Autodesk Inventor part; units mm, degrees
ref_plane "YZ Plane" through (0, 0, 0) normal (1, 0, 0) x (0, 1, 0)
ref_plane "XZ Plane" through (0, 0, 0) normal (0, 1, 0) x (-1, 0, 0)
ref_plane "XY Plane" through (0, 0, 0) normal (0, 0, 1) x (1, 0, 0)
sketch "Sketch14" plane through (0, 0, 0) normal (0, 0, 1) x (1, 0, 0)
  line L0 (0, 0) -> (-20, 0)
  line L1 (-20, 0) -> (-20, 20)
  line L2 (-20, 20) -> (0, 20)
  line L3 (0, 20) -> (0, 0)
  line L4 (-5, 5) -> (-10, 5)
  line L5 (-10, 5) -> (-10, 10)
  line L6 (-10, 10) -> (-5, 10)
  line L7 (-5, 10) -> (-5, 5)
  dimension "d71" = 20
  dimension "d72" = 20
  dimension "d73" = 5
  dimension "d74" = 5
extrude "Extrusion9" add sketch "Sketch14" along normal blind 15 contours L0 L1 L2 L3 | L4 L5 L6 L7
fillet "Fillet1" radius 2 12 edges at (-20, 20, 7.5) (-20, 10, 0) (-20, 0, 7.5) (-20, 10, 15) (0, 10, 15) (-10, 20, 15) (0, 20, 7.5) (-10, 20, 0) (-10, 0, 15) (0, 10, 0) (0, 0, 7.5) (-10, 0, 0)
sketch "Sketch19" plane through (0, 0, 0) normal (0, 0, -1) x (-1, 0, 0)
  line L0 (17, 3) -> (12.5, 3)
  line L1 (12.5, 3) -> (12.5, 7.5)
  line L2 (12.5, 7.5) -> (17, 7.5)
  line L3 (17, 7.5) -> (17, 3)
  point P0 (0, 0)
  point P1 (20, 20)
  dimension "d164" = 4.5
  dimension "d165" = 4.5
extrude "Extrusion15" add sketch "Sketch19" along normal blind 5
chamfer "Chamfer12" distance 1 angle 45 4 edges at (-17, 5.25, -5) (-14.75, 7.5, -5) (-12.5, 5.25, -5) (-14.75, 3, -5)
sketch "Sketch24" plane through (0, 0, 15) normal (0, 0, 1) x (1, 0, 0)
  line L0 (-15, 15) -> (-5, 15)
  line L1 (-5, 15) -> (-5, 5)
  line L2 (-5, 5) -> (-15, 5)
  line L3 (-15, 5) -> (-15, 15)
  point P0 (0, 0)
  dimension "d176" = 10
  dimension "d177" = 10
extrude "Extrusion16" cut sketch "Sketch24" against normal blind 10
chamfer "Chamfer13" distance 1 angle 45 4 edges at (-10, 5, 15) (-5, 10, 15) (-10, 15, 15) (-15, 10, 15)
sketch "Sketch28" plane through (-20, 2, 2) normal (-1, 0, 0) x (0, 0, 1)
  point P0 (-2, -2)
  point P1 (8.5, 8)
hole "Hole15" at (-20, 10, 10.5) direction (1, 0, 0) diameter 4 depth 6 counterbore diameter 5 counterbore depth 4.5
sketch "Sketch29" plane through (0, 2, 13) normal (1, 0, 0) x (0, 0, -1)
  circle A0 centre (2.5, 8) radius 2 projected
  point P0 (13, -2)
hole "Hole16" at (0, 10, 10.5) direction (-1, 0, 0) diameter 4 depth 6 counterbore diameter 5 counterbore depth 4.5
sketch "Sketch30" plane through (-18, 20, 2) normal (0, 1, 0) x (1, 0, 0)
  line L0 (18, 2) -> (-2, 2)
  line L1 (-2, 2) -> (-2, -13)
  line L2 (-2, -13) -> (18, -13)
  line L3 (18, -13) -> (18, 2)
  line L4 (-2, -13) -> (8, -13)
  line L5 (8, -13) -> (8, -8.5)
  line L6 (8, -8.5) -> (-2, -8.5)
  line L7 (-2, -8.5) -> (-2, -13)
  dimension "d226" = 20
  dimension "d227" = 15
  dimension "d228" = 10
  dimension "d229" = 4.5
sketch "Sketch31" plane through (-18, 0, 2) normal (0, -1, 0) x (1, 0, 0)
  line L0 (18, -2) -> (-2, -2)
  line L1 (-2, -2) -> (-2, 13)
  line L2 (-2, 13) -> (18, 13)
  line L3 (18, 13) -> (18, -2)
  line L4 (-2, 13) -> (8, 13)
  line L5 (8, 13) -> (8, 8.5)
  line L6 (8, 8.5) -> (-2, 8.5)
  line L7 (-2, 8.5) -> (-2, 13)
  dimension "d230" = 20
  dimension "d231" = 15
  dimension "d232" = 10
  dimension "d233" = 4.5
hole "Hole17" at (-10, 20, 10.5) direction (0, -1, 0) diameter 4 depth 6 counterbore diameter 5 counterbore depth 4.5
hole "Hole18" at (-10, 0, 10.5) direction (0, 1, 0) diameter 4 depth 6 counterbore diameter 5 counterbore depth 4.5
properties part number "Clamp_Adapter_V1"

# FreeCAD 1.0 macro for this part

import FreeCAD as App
import Part
import Sketcher

V = App.Vector
Q = App.Units.Quantity


def edges_at(feature, points):
    """Names of the edges that pass closest to the given points."""
    edges = feature.Shape.Edges
    near = lambda p: min(range(len(edges)), key=lambda i: edges[i].distToShape(Part.Vertex(*p))[0])
    return sorted({f"Edge{near(p) + 1}" for p in points})

doc = App.newDocument("Part")
body = doc.addObject("PartDesign::Body", "Body")

sketch1 = body.newObject("Sketcher::SketchObject", "Sketch")
sketch1.AttachmentSupport = (doc.getObject("XY_Plane"), [""])
sketch1.MapMode = "FlatFace"
sketch1.addGeometry([
    Part.LineSegment(V(-20, 0, 0), V(0, 0, 0)),
    Part.LineSegment(V(0, 0, 0), V(0, 20, 0)),
    Part.LineSegment(V(0, 20, 0), V(-20, 20, 0)),
    Part.LineSegment(V(-20, 20, 0), V(-20, 0, 0)),
], False)
sketch1.addConstraint([
    Sketcher.Constraint("Coincident", 0, 2, 1, 1),
    Sketcher.Constraint("Coincident", 1, 2, 2, 1),
    Sketcher.Constraint("Coincident", 2, 2, 3, 1),
    Sketcher.Constraint("Coincident", 3, 2, 0, 1),
    Sketcher.Constraint("Horizontal", 0),
    Sketcher.Constraint("Vertical", 1),
    Sketcher.Constraint("Horizontal", 2),
    Sketcher.Constraint("Vertical", 3),
    Sketcher.Constraint("Coincident", 0, 2, -1, 1),
    Sketcher.Constraint("Equal", 2, 1),
    Sketcher.Constraint("DistanceX", 0, 1, 0, 2, Q("20 mm")),
])
pad1 = body.newObject("PartDesign::Pad", "Pad")
pad1.Profile = sketch1
pad1.Length = 15
doc.recompute()

fillet = body.newObject("PartDesign::Fillet", "Fillet")
fillet.Base = (pad1, ["Edge1"])
fillet.UseAllEdges = True
fillet.Radius = 2

sketch2 = body.newObject("Sketcher::SketchObject", "Sketch001")
sketch2.AttachmentSupport = (doc.getObject("XY_Plane"), [""])
sketch2.MapMode = "FlatFace"
sketch2.addGeometry([
    Part.LineSegment(V(-12.5, 3, 0), V(-17, 3, 0)),
    Part.LineSegment(V(-17, 3, 0), V(-17, 7.5, 0)),
    Part.LineSegment(V(-17, 7.5, 0), V(-12.5, 7.5, 0)),
    Part.LineSegment(V(-12.5, 7.5, 0), V(-12.5, 3, 0)),
], False)
sketch2.addConstraint([
    Sketcher.Constraint("Coincident", 0, 2, 1, 1),
    Sketcher.Constraint("Coincident", 1, 2, 2, 1),
    Sketcher.Constraint("Coincident", 2, 2, 3, 1),
    Sketcher.Constraint("Coincident", 3, 2, 0, 1),
    Sketcher.Constraint("Horizontal", 0),
    Sketcher.Constraint("Vertical", 1),
    Sketcher.Constraint("Horizontal", 2),
    Sketcher.Constraint("Vertical", 3),
    Sketcher.Constraint("Equal", 2, 1),
    Sketcher.Constraint("DistanceX", 0, 2, 0, 1, Q("4.5 mm")),
    Sketcher.Constraint("DistanceX", 0, 2, -1, 1, Q("17 mm")),
    Sketcher.Constraint("DistanceY", -1, 1, 0, 2, Q("3 mm")),
])
pad2 = body.newObject("PartDesign::Pad", "Pad001")
pad2.Profile = sketch2
pad2.Length = 5
pad2.Reversed = True
doc.recompute()

chamfer = body.newObject("PartDesign::Chamfer", "Chamfer")
chamfer.Base = (pad2, edges_at(pad2, [
    (-17, 5.25, -5),
    (-14.75, 7.5, -5),
    (-12.5, 5.25, -5),
    (-14.75, 3, -5),
]))
chamfer.Size = 1

sketch3 = body.newObject("Sketcher::SketchObject", "Sketch002")
sketch3.AttachmentSupport = (doc.getObject("XY_Plane"), [""])
sketch3.MapMode = "FlatFace"
sketch3.AttachmentOffset = App.Placement(V(0, 0, 15), App.Rotation())
sketch3.addGeometry([
    Part.LineSegment(V(-5, 15, 0), V(-15, 15, 0)),
    Part.LineSegment(V(-15, 15, 0), V(-15, 5, 0)),
    Part.LineSegment(V(-15, 5, 0), V(-5, 5, 0)),
    Part.LineSegment(V(-5, 5, 0), V(-5, 15, 0)),
], False)
sketch3.addConstraint([
    Sketcher.Constraint("Coincident", 0, 2, 1, 1),
    Sketcher.Constraint("Coincident", 1, 2, 2, 1),
    Sketcher.Constraint("Coincident", 2, 2, 3, 1),
    Sketcher.Constraint("Coincident", 3, 2, 0, 1),
    Sketcher.Constraint("Horizontal", 0),
    Sketcher.Constraint("Vertical", 1),
    Sketcher.Constraint("Horizontal", 2),
    Sketcher.Constraint("Vertical", 3),
    Sketcher.Constraint("Equal", 2, 1),
    Sketcher.Constraint("DistanceX", 0, 2, 0, 1, Q("10 mm")),
    Sketcher.Constraint("DistanceX", 0, 2, -1, 1, Q("15 mm")),
    Sketcher.Constraint("DistanceY", -1, 1, 0, 2, Q("15 mm")),
])
pocket1 = body.newObject("PartDesign::Pocket", "Pocket")
pocket1.Profile = sketch3
pocket1.Length = 10
doc.recompute()

chamfer2 = body.newObject("PartDesign::Chamfer", "Chamfer001")
chamfer2.Base = (pocket1, edges_at(pocket1, [
    (-10, 5, 15),
    (-5, 10, 15),
    (-10, 15, 15),
    (-15, 10, 15),
]))
chamfer2.Size = 1

sketch4 = body.newObject("Sketcher::SketchObject", "Sketch003")
sketch4.AttachmentSupport = (doc.getObject("YZ_Plane"), [""])
sketch4.MapMode = "FlatFace"
sketch4.AttachmentOffset = App.Placement(V(0, 0, -20), App.Rotation())
sketch4.addGeometry(Part.Circle(V(10, 10.5, 0), V(0, 0, 1), 2), False)
sketch4.addConstraint([
    Sketcher.Constraint("Diameter", 0, Q("4 mm")),
    Sketcher.Constraint("DistanceX", -1, 1, 0, 3, Q("10 mm")),
    Sketcher.Constraint("DistanceY", -1, 1, 0, 3, Q("10.5 mm")),
])
doc.recompute()
hole = body.newObject("PartDesign::Hole", "Hole")
hole.Profile = sketch4
hole.ThreadType = "None"
hole.Diameter = 4
hole.DepthType = "Dimension"
hole.Depth = 6
hole.DrillPoint = "Flat"
hole.HoleCutType = "Counterbore"
hole.HoleCutDiameter = 5
hole.HoleCutDepth = 4.5
hole.Reversed = True

sketch5 = body.newObject("Sketcher::SketchObject", "Sketch004")
sketch5.AttachmentSupport = (doc.getObject("YZ_Plane"), [""])
sketch5.MapMode = "FlatFace"
sketch5.addGeometry(Part.Circle(V(10, 10.5, 0), V(0, 0, 1), 2), False)
sketch5.addConstraint([
    Sketcher.Constraint("Diameter", 0, Q("4 mm")),
    Sketcher.Constraint("DistanceX", -1, 1, 0, 3, Q("10 mm")),
    Sketcher.Constraint("DistanceY", -1, 1, 0, 3, Q("10.5 mm")),
])
doc.recompute()
hole2 = body.newObject("PartDesign::Hole", "Hole001")
hole2.Profile = sketch5
hole2.ThreadType = "None"
hole2.Diameter = 4
hole2.DepthType = "Dimension"
hole2.Depth = 6
hole2.DrillPoint = "Flat"
hole2.HoleCutType = "Counterbore"
hole2.HoleCutDiameter = 5
hole2.HoleCutDepth = 4.5

sketch6 = body.newObject("Sketcher::SketchObject", "Sketch005")
sketch6.AttachmentSupport = (doc.getObject("XZ_Plane"), [""])
sketch6.MapMode = "FlatFace"
sketch6.AttachmentOffset = App.Placement(V(0, 0, -20), App.Rotation())
sketch6.addGeometry(Part.Circle(V(-10, 10.5, 0), V(0, 0, 1), 2), False)
sketch6.addConstraint([
    Sketcher.Constraint("Diameter", 0, Q("4 mm")),
    Sketcher.Constraint("DistanceX", 0, 3, -1, 1, Q("10 mm")),
    Sketcher.Constraint("DistanceY", -1, 1, 0, 3, Q("10.5 mm")),
])
doc.recompute()
hole3 = body.newObject("PartDesign::Hole", "Hole002")
hole3.Profile = sketch6
hole3.ThreadType = "None"
hole3.Diameter = 4
hole3.DepthType = "Dimension"
hole3.Depth = 6
hole3.DrillPoint = "Flat"
hole3.HoleCutType = "Counterbore"
hole3.HoleCutDiameter = 5
hole3.HoleCutDepth = 4.5
hole3.Reversed = True

sketch7 = body.newObject("Sketcher::SketchObject", "Sketch006")
sketch7.AttachmentSupport = (doc.getObject("XZ_Plane"), [""])
sketch7.MapMode = "FlatFace"
sketch7.addGeometry(Part.Circle(V(-10, 10.5, 0), V(0, 0, 1), 2), False)
sketch7.addConstraint([
    Sketcher.Constraint("Diameter", 0, Q("4 mm")),
    Sketcher.Constraint("DistanceX", 0, 3, -1, 1, Q("10 mm")),
    Sketcher.Constraint("DistanceY", -1, 1, 0, 3, Q("10.5 mm")),
])
doc.recompute()
hole4 = body.newObject("PartDesign::Hole", "Hole003")
hole4.Profile = sketch7
hole4.ThreadType = "None"
hole4.Diameter = 4
hole4.DepthType = "Dimension"
hole4.Depth = 6
hole4.DrillPoint = "Flat"
hole4.HoleCutType = "Counterbore"
hole4.HoleCutDiameter = 5
hole4.HoleCutDepth = 4.5

doc.recompute()
